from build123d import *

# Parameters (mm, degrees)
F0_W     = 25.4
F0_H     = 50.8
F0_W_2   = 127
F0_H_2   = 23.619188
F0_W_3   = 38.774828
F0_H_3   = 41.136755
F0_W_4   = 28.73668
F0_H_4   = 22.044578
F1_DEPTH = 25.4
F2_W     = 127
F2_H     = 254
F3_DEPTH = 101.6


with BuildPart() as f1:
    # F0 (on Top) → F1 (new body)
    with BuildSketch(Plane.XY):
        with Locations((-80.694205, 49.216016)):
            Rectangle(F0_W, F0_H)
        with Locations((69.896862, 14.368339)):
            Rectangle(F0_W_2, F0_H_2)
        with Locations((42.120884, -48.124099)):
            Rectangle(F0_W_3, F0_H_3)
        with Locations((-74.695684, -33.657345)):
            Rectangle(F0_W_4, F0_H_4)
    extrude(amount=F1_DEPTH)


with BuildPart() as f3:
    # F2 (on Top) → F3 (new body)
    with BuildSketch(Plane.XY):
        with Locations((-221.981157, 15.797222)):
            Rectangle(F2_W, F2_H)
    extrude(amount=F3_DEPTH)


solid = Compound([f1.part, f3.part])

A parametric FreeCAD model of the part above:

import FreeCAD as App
import Part
import Sketcher

V = App.Vector
Q = App.Units.Quantity


def add_polygon(sketch, points):
    """Adds a closed chain of lines whose ends are joined by coincident constraints."""
    first, n = sketch.GeometryCount, len(points)
    for a, b in zip(points, points[1:] + points[:1]):
        sketch.addGeometry(Part.LineSegment(App.Vector(*a, 0), App.Vector(*b, 0)), False)
    for i in range(n):
        sketch.addConstraint(Sketcher.Constraint("Coincident", first + i, 2, first + (i + 1) % n, 1))

doc = App.newDocument("Part")
body = doc.addObject("PartDesign::Body", "Body")
body.AllowCompound = True

# Sketch on XY plane
sketch1 = doc.addObject("Sketcher::SketchObject", "Sketch")
body.addObject(sketch1)
sketch1.AttachmentSupport = (doc.XY_Plane, [""])
sketch1.MapMode = "FlatFace"
add_polygon(sketch1, [(-93, 75), (-93, 24), (-68, 24), (-68, 75)])  # lines 0-3
add_polygon(sketch1, [(6, 26), (6, 3), (133, 3), (133, 26)])  # lines 4-7
add_polygon(sketch1, [(23, -28), (23, -69), (62, -69), (62, -28)])  # lines 8-11
add_polygon(sketch1, [(-89, -23), (-89, -45), (-60, -45), (-60, -23)])  # lines 12-15
sketch1.addConstraint(Sketcher.Constraint("Vertical", 0))
sketch1.addConstraint(Sketcher.Constraint("Horizontal", 1))
sketch1.addConstraint(Sketcher.Constraint("Vertical", 2))
sketch1.addConstraint(Sketcher.Constraint("Horizontal", 3))
sketch1.addConstraint(Sketcher.Constraint("Vertical", 4))
sketch1.addConstraint(Sketcher.Constraint("Horizontal", 5))
sketch1.addConstraint(Sketcher.Constraint("Vertical", 6))
sketch1.addConstraint(Sketcher.Constraint("Horizontal", 7))
sketch1.addConstraint(Sketcher.Constraint("Vertical", 8))
sketch1.addConstraint(Sketcher.Constraint("Horizontal", 9))
sketch1.addConstraint(Sketcher.Constraint("Vertical", 10))
sketch1.addConstraint(Sketcher.Constraint("Horizontal", 11))
sketch1.addConstraint(Sketcher.Constraint("Vertical", 12))
sketch1.addConstraint(Sketcher.Constraint("Horizontal", 13))
sketch1.addConstraint(Sketcher.Constraint("Vertical", 14))
sketch1.addConstraint(Sketcher.Constraint("Horizontal", 15))
sketch1.addConstraint(Sketcher.Constraint("DistanceX", 1, 1, 1, 2, Q("1 in")))
sketch1.addConstraint(Sketcher.Constraint("DistanceX", 5, 1, 5, 2, Q("5 in")))
sketch1.addConstraint(Sketcher.Constraint("DistanceY", 0, 2, 0, 1, Q("2 in")))
sketch1.addConstraint(Sketcher.Constraint("DistanceX", 13, 1, 13, 2, 28.73668))
sketch1.addConstraint(Sketcher.Constraint("DistanceY", 4, 2, 4, 1, 23.619188))
sketch1.addConstraint(Sketcher.Constraint("DistanceY", 12, 2, 12, 1, 22.044578))
sketch1.addConstraint(Sketcher.Constraint("DistanceX", -1, 1, 9, 2, 61.508298))
sketch1.addConstraint(Sketcher.Constraint("DistanceY", 14, 2, 4, 2, 25.193801))
sketch1.addConstraint(Sketcher.Constraint("DistanceX", 9, 1, 9, 2, 38.774828))
sketch1.addConstraint(Sketcher.Constraint("DistanceY", 8, 2, 8, 1, 41.136755))
sketch1.addConstraint(Sketcher.Constraint("DistanceX", -1, 1, 4, 2, 6.396862))
sketch1.addConstraint(Sketcher.Constraint("DistanceY", 10, 2, -1, 1, 27.555722))
sketch1.addConstraint(Sketcher.Constraint("DistanceY", 4, 2, 1, 2, 21.257271))
sketch1.addConstraint(Sketcher.Constraint("DistanceY", 8, 2, 4, 2, 71.251221))
sketch1.addConstraint(Sketcher.Constraint("DistanceX", 0, 2, 12, 2, 4.330181))
sketch1.addConstraint(Sketcher.Constraint("DistanceX", 0, 2, -1, 1, 93.394205))
pad1 = doc.addObject("PartDesign::Pad", "Pad")
body.addObject(pad1)
pad1.Profile = sketch1
pad1.Length = Q("1 in")
body2 = doc.addObject("PartDesign::Body", "Body001")

# Sketch on XY plane
sketch2 = doc.addObject("Sketcher::SketchObject", "Sketch001")
body2.addObject(sketch2)
sketch2.AttachmentSupport = (doc.getObject("XY_Plane001"), [""])
sketch2.MapMode = "FlatFace"
add_polygon(sketch2, [(-285, 143), (-285, -111), (-158, -111), (-158, 143)])  # lines 0-3
sketch2.addConstraint(Sketcher.Constraint("Vertical", 0))
sketch2.addConstraint(Sketcher.Constraint("Horizontal", 1))
sketch2.addConstraint(Sketcher.Constraint("Vertical", 2))
sketch2.addConstraint(Sketcher.Constraint("Horizontal", 3))
sketch2.addConstraint(Sketcher.Constraint("DistanceX", 1, 1, 1, 2, Q("5 in")))
sketch2.addConstraint(Sketcher.Constraint("DistanceY", 0, 2, 0, 1, Q("10 in")))
sketch2.addConstraint(Sketcher.Constraint("DistanceY", -1, 1, 2, 2, 142.797222))
sketch2.addConstraint(Sketcher.Constraint("DistanceX", 0, 2, -1, 1, 285.481157))
pad2 = doc.addObject("PartDesign::Pad", "Pad001")
body2.addObject(pad2)
pad2.Profile = sketch2
pad2.Length = Q("4 in")

doc.recompute()
